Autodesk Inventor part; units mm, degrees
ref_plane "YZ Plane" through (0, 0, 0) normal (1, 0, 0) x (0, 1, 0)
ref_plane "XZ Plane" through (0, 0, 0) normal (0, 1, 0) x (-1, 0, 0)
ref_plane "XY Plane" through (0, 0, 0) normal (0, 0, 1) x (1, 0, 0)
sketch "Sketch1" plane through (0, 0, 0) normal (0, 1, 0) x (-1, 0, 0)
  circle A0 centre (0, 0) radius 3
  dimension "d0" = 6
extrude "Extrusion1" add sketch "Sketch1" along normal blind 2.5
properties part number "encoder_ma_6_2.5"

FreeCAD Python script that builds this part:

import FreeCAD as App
import Part
import Sketcher

V = App.Vector

doc = App.newDocument("Part")
body = doc.addObject("PartDesign::Body", "Body")

# Sketch on XZ plane
sketch1 = body.newObject("Sketcher::SketchObject", "Sketch")
sketch1.AttachmentSupport = (doc.getObject("XZ_Plane"), [""])
sketch1.MapMode = "FlatFace"
sketch1.addGeometry(Part.Circle(V(0, 0, 0), V(0, 0, 1), 3), False)
sketch1.addConstraint([
    Sketcher.Constraint("Coincident", 0, 3, -1, 1),
    Sketcher.Constraint("Diameter", 0, 6.0),
])
pad1 = body.newObject("PartDesign::Pad", "Pad")
pad1.Profile = sketch1
pad1.Length = 2.5
pad1.Reversed = True

doc.recompute()
